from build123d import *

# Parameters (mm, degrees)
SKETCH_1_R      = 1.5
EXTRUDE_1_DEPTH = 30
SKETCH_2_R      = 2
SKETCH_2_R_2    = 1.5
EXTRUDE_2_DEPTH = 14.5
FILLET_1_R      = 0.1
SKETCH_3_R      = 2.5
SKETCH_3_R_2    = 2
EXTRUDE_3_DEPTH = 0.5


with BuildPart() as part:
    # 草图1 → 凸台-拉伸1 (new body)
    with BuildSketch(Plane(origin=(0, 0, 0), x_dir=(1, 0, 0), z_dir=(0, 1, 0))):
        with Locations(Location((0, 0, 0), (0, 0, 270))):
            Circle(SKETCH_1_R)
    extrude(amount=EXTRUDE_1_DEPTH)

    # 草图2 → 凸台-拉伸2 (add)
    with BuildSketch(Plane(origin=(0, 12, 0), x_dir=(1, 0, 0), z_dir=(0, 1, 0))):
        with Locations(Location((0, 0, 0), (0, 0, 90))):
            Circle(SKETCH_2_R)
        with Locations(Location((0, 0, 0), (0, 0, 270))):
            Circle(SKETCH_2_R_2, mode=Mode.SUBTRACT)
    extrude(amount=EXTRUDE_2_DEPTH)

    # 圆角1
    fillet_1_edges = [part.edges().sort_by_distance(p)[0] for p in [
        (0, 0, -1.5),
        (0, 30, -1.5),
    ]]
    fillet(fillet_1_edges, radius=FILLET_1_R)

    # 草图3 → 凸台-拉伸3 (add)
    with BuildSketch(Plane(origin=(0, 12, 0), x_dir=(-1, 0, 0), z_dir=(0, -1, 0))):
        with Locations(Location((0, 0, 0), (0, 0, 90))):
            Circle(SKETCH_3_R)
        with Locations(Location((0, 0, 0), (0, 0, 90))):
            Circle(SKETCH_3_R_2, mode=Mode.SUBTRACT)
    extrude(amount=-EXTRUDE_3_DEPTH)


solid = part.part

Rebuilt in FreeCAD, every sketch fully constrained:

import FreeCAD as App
import Part
import Sketcher
from FreeCAD import Vector
Q = App.Units.Quantity


def edges_at(feature, points):
    """Names of the edges that pass closest to the given points."""
    edges = feature.Shape.Edges
    near = lambda p: min(range(len(edges)), key=lambda i: edges[i].distToShape(Part.Vertex(*p))[0])
    return sorted({f"Edge{near(p) + 1}" for p in points})

doc = App.newDocument("Part")
body = doc.addObject("PartDesign::Body", "Body")

# Sketch on XZ plane
sketch1 = body.newObject("Sketcher::SketchObject", "Sketch")
sketch1.AttachmentSupport = (doc.getObject("XZ_Plane"), [""])
sketch1.MapMode = "FlatFace"
sketch1.addGeometry(Part.Circle(Vector(0, 0, 0), Vector(0, 0, 1), 1.5), False)
sketch1.addConstraint(Sketcher.Constraint("Coincident", 0, 3, -1, 1))
sketch1.addConstraint(Sketcher.Constraint("Diameter", 0, Q("3 mm")))
pad1 = body.newObject("PartDesign::Pad", "Pad")
pad1.Profile = sketch1
pad1.Length = 30
pad1.Reversed = True

# Sketch on XZ plane
sketch2 = body.newObject("Sketcher::SketchObject", "Sketch001")
sketch2.AttachmentSupport = (doc.getObject("XZ_Plane"), [""])
sketch2.MapMode = "FlatFace"
sketch2.AttachmentOffset = App.Placement(Vector(0, 0, -12), App.Rotation())
sketch2.addGeometry(Part.Circle(Vector(0, 0, 0), Vector(0, 0, 1), 2), False)
sketch2.addGeometry(Part.Circle(Vector(0, 0, 0), Vector(0, 0, 1), 1.5), False)
sketch2.addConstraint(Sketcher.Constraint("Coincident", 0, 3, -1, 1))
sketch2.addConstraint(Sketcher.Constraint("Coincident", 1, 3, -1, 1))
sketch2.addConstraint(Sketcher.Constraint("Diameter", 0, Q("4 mm")))
sketch2.addConstraint(Sketcher.Constraint("Diameter", 1, Q("3 mm")))
pad2 = body.newObject("PartDesign::Pad", "Pad001")
pad2.Profile = sketch2
pad2.Length = 14.5
pad2.Reversed = True
doc.recompute()

fillet = body.newObject("PartDesign::Fillet", "Fillet")
fillet.Base = (pad2, edges_at(pad2, [(0, 0, -1.5), (0, 30, -1.5)]))
fillet.Radius = 0.1

# Sketch on XZ plane
sketch3 = body.newObject("Sketcher::SketchObject", "Sketch002")
sketch3.AttachmentSupport = (doc.getObject("XZ_Plane"), [""])
sketch3.MapMode = "FlatFace"
sketch3.AttachmentOffset = App.Placement(Vector(0, 0, -12), App.Rotation())
sketch3.addGeometry(Part.Circle(Vector(0, 0, 0), Vector(0, 0, 1), 2.5), False)
sketch3.addGeometry(Part.Circle(Vector(0, 0, 0), Vector(0, 0, 1), 2), False)
sketch3.addConstraint(Sketcher.Constraint("Coincident", 0, 3, -1, 1))
sketch3.addConstraint(Sketcher.Constraint("Coincident", 1, 3, -1, 1))
sketch3.addConstraint(Sketcher.Constraint("Diameter", 0, Q("5 mm")))
sketch3.addConstraint(Sketcher.Constraint("Diameter", 1, Q("4 mm")))
pad3 = body.newObject("PartDesign::Pad", "Pad002")
pad3.Profile = sketch3
pad3.Length = 0.5
pad3.Reversed = True

doc.recompute()
